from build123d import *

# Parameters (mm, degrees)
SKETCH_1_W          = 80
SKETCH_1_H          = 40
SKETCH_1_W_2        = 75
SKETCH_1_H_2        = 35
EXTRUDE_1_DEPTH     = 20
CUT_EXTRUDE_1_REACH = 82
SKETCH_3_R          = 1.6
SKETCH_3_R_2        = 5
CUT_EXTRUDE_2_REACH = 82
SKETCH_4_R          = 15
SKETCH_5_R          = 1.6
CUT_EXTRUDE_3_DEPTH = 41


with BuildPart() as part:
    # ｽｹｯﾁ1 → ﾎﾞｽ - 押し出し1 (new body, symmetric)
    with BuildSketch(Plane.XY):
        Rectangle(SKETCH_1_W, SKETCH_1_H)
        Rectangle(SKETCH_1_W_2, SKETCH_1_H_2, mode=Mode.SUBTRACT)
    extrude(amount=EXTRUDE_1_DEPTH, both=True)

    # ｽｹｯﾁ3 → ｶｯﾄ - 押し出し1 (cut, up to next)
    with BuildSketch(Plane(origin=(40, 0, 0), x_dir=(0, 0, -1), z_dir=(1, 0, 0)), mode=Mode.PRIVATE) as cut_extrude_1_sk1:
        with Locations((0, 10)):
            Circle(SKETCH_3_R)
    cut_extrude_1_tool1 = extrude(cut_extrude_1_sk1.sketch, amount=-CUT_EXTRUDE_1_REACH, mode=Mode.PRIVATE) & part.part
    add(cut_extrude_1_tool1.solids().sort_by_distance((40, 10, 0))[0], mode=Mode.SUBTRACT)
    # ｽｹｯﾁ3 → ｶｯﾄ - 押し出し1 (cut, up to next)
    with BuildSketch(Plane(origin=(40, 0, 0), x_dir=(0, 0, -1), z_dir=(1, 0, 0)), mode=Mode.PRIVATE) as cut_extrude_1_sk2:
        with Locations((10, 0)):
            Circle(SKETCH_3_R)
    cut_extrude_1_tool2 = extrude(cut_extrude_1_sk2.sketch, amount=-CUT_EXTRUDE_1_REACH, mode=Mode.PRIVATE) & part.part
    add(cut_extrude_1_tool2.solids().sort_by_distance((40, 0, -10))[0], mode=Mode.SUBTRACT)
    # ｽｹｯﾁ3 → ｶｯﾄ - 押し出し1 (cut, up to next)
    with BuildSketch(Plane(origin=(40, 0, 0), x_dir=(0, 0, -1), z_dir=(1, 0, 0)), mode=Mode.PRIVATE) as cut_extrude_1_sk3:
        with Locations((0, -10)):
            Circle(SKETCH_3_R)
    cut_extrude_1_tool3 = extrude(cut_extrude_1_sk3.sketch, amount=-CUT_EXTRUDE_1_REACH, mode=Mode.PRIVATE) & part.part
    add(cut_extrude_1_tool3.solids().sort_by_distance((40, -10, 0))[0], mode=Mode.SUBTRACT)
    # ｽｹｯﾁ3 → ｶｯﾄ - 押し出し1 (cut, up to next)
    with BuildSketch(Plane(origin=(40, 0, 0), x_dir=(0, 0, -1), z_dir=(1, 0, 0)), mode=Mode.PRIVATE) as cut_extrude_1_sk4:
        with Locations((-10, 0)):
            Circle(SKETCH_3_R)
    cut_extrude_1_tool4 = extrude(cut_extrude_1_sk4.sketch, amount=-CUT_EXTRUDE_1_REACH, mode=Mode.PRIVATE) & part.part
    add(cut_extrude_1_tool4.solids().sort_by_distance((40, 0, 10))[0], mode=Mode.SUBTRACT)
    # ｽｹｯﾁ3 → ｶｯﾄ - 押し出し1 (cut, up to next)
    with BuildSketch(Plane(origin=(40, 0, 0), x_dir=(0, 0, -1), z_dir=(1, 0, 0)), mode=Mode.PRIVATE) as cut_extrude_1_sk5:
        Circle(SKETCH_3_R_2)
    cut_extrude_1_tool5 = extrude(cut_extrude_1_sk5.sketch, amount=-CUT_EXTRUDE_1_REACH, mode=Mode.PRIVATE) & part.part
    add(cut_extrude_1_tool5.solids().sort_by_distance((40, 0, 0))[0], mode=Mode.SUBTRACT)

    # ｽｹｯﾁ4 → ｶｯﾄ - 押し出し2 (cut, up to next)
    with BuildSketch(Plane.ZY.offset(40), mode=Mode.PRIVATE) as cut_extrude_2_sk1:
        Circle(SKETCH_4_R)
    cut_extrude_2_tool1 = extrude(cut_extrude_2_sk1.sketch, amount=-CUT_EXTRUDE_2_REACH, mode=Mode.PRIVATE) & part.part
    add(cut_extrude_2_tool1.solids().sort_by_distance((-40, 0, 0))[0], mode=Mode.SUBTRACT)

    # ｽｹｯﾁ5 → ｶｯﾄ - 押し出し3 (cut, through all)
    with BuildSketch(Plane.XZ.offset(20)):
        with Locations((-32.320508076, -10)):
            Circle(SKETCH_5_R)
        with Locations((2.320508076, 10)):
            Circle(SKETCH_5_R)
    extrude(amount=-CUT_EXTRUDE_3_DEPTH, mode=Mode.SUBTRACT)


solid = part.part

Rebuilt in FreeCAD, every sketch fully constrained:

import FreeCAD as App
import Part
import Sketcher

V = App.Vector
Q = App.Units.Quantity

doc = App.newDocument("Part")
body = doc.addObject("PartDesign::Body", "Body")

# Sketch on XY plane
sketch1 = doc.addObject("Sketcher::SketchObject", "Sketch")
body.addObject(sketch1)
sketch1.AttachmentSupport = (doc.XY_Plane, [""])
sketch1.MapMode = "FlatFace"
sketch1.addGeometry([
    Part.LineSegment(V(-40, 20, 0), V(-40, -20, 0)),  # 0
    Part.LineSegment(V(-40, -20, 0), V(40, -20, 0)),  # 1
    Part.LineSegment(V(40, -20, 0), V(40, 20, 0)),  # 2
    Part.LineSegment(V(40, 20, 0), V(-40, 20, 0)),  # 3
    Part.LineSegment(V(37.5, -17.5, 0), V(-37.5, -17.5, 0)),  # 4
    Part.LineSegment(V(-37.5, -17.5, 0), V(-37.5, 17.5, 0)),  # 5
    Part.LineSegment(V(-37.5, 17.5, 0), V(37.5, 17.5, 0)),  # 6
    Part.LineSegment(V(37.5, 17.5, 0), V(37.5, -17.5, 0)),  # 7
], False)
sketch1.addConstraint([
    Sketcher.Constraint("Coincident", 0, 2, 1, 1),
    Sketcher.Constraint("Coincident", 1, 2, 2, 1),
    Sketcher.Constraint("Coincident", 2, 2, 3, 1),
    Sketcher.Constraint("Coincident", 3, 2, 0, 1),
    Sketcher.Constraint("Coincident", 4, 2, 5, 1),
    Sketcher.Constraint("Coincident", 5, 2, 6, 1),
    Sketcher.Constraint("Coincident", 6, 2, 7, 1),
    Sketcher.Constraint("Coincident", 7, 2, 4, 1),
    Sketcher.Constraint("Vertical", 0),
    Sketcher.Constraint("Horizontal", 1),
    Sketcher.Constraint("Vertical", 2),
    Sketcher.Constraint("Horizontal", 3),
    Sketcher.Constraint("Horizontal", 4),
    Sketcher.Constraint("Vertical", 5),
    Sketcher.Constraint("Horizontal", 6),
    Sketcher.Constraint("Vertical", 7),
    Sketcher.Constraint("Symmetric", 0, 2, 2, 2, -1, 1),
    Sketcher.Constraint("Symmetric", 4, 2, 6, 2, -1, 1),
    Sketcher.Constraint("DistanceX", 1, 1, 1, 2, Q("80 mm")),
    Sketcher.Constraint("DistanceX", 4, 2, 4, 1, Q("75 mm")),
    Sketcher.Constraint("DistanceY", 0, 2, 0, 1, Q("40 mm")),
    Sketcher.Constraint("DistanceY", 5, 1, 5, 2, Q("35 mm")),
])
pad1 = doc.addObject("PartDesign::Pad", "Pad")
body.addObject(pad1)
pad1.Profile = sketch1
pad1.Length = 40
pad1.Midplane = True

# Sketch on YZ plane
sketch2 = doc.addObject("Sketcher::SketchObject", "Sketch001")
body.addObject(sketch2)
sketch2.AttachmentSupport = (doc.YZ_Plane, [""])
sketch2.MapMode = "FlatFace"
sketch2.AttachmentOffset = App.Placement(V(0, 0, 40), App.Rotation())
sketch2.addGeometry(Part.Circle(V(10, 0, 0), V(0, 0, 1), 1.6), False)
sketch2.addConstraint([
    Sketcher.Constraint("PointOnObject", 0, 3, -1),
    Sketcher.Constraint("Diameter", 0, Q("3.2 mm")),
    Sketcher.Constraint("DistanceX", -1, 1, 0, 3, Q("10 mm")),
])
pocket1 = doc.addObject("PartDesign::Pocket", "Pocket")
body.addObject(pocket1)
pocket1.Profile = sketch2
pocket1.Type = "UpToFirst"

# Sketch on YZ plane
sketch3 = doc.addObject("Sketcher::SketchObject", "Sketch002")
body.addObject(sketch3)
sketch3.AttachmentSupport = (doc.YZ_Plane, [""])
sketch3.MapMode = "FlatFace"
sketch3.AttachmentOffset = App.Placement(V(0, 0, 40), App.Rotation())
sketch3.addGeometry(Part.Circle(V(0, -10, 0), V(0, 0, 1), 1.6), False)
sketch3.addConstraint([
    Sketcher.Constraint("PointOnObject", 0, 3, -2),
    Sketcher.Constraint("Diameter", 0, Q("3.2 mm")),
    Sketcher.Constraint("DistanceY", 0, 3, -1, 1, Q("10 mm")),
])
pocket2 = doc.addObject("PartDesign::Pocket", "Pocket001")
body.addObject(pocket2)
pocket2.Profile = sketch3
pocket2.Type = "UpToFirst"

# Sketch on YZ plane
sketch4 = doc.addObject("Sketcher::SketchObject", "Sketch003")
body.addObject(sketch4)
sketch4.AttachmentSupport = (doc.YZ_Plane, [""])
sketch4.MapMode = "FlatFace"
sketch4.AttachmentOffset = App.Placement(V(0, 0, 40), App.Rotation())
sketch4.addGeometry(Part.Circle(V(-10, 0, 0), V(0, 0, 1), 1.6), False)
sketch4.addConstraint([
    Sketcher.Constraint("PointOnObject", 0, 3, -1),
    Sketcher.Constraint("Diameter", 0, Q("3.2 mm")),
    Sketcher.Constraint("DistanceX", 0, 3, -1, 1, Q("10 mm")),
])
pocket3 = doc.addObject("PartDesign::Pocket", "Pocket002")
body.addObject(pocket3)
pocket3.Profile = sketch4
pocket3.Type = "UpToFirst"

# Sketch on YZ plane
sketch5 = doc.addObject("Sketcher::SketchObject", "Sketch004")
body.addObject(sketch5)
sketch5.AttachmentSupport = (doc.YZ_Plane, [""])
sketch5.MapMode = "FlatFace"
sketch5.AttachmentOffset = App.Placement(V(0, 0, 40), App.Rotation())
sketch5.addGeometry(Part.Circle(V(0, 10, 0), V(0, 0, 1), 1.6), False)
sketch5.addConstraint([
    Sketcher.Constraint("PointOnObject", 0, 3, -2),
    Sketcher.Constraint("Diameter", 0, Q("3.2 mm")),
    Sketcher.Constraint("DistanceY", -1, 1, 0, 3, Q("10 mm")),
])
pocket4 = doc.addObject("PartDesign::Pocket", "Pocket003")
body.addObject(pocket4)
pocket4.Profile = sketch5
pocket4.Type = "UpToFirst"

# Sketch on YZ plane
sketch6 = doc.addObject("Sketcher::SketchObject", "Sketch005")
body.addObject(sketch6)
sketch6.AttachmentSupport = (doc.YZ_Plane, [""])
sketch6.MapMode = "FlatFace"
sketch6.AttachmentOffset = App.Placement(V(0, 0, 40), App.Rotation())
sketch6.addGeometry(Part.Circle(V(0, 0, 0), V(0, 0, 1), 5), False)
sketch6.addConstraint([
    Sketcher.Constraint("Coincident", 0, 3, -1, 1),
    Sketcher.Constraint("Diameter", 0, Q("10 mm")),
])
pocket5 = doc.addObject("PartDesign::Pocket", "Pocket004")
body.addObject(pocket5)
pocket5.Profile = sketch6
pocket5.Type = "UpToFirst"

# Sketch on YZ plane
sketch7 = doc.addObject("Sketcher::SketchObject", "Sketch006")
body.addObject(sketch7)
sketch7.AttachmentSupport = (doc.YZ_Plane, [""])
sketch7.MapMode = "FlatFace"
sketch7.AttachmentOffset = App.Placement(V(0, 0, -40), App.Rotation())
sketch7.addGeometry(Part.Circle(V(0, 0, 0), V(0, 0, 1), 15), False)
sketch7.addConstraint([
    Sketcher.Constraint("Coincident", 0, 3, -1, 1),
    Sketcher.Constraint("Diameter", 0, Q("30 mm")),
])
pocket6 = doc.addObject("PartDesign::Pocket", "Pocket005")
body.addObject(pocket6)
pocket6.Profile = sketch7
pocket6.Type = "UpToFirst"
pocket6.Reversed = True

# Sketch on XZ plane
sketch8 = doc.addObject("Sketcher::SketchObject", "Sketch007")
body.addObject(sketch8)
sketch8.AttachmentSupport = (doc.XZ_Plane, [""])
sketch8.MapMode = "FlatFace"
sketch8.AttachmentOffset = App.Placement(V(0, 0, 20), App.Rotation())
sketch8.addGeometry([
    Part.Circle(V(-32.320508, -10, 0), V(0, 0, 1), 1.6),
    Part.Circle(V(2.320508, 10, 0), V(0, 0, 1), 1.6),
], False)
sketch8.addConstraint([
    Sketcher.Constraint("Equal", 0, 1),
    Sketcher.Constraint("Diameter", 0, Q("3.2 mm")),
    Sketcher.Constraint("DistanceY", 0, 3, -1, 1, Q("10 mm")),
    Sketcher.Constraint("DistanceY", -1, 1, 1, 3, Q("10 mm")),
    Sketcher.Constraint("DistanceX", 0, 3, -1, 1, Q("32.320508 mm")),
    Sketcher.Constraint("DistanceX", -1, 1, 1, 3, Q("2.320508 mm")),
])
pocket7 = doc.addObject("PartDesign::Pocket", "Pocket006")
body.addObject(pocket7)
pocket7.Profile = sketch8
pocket7.Type = "ThroughAll"

doc.recompute()
